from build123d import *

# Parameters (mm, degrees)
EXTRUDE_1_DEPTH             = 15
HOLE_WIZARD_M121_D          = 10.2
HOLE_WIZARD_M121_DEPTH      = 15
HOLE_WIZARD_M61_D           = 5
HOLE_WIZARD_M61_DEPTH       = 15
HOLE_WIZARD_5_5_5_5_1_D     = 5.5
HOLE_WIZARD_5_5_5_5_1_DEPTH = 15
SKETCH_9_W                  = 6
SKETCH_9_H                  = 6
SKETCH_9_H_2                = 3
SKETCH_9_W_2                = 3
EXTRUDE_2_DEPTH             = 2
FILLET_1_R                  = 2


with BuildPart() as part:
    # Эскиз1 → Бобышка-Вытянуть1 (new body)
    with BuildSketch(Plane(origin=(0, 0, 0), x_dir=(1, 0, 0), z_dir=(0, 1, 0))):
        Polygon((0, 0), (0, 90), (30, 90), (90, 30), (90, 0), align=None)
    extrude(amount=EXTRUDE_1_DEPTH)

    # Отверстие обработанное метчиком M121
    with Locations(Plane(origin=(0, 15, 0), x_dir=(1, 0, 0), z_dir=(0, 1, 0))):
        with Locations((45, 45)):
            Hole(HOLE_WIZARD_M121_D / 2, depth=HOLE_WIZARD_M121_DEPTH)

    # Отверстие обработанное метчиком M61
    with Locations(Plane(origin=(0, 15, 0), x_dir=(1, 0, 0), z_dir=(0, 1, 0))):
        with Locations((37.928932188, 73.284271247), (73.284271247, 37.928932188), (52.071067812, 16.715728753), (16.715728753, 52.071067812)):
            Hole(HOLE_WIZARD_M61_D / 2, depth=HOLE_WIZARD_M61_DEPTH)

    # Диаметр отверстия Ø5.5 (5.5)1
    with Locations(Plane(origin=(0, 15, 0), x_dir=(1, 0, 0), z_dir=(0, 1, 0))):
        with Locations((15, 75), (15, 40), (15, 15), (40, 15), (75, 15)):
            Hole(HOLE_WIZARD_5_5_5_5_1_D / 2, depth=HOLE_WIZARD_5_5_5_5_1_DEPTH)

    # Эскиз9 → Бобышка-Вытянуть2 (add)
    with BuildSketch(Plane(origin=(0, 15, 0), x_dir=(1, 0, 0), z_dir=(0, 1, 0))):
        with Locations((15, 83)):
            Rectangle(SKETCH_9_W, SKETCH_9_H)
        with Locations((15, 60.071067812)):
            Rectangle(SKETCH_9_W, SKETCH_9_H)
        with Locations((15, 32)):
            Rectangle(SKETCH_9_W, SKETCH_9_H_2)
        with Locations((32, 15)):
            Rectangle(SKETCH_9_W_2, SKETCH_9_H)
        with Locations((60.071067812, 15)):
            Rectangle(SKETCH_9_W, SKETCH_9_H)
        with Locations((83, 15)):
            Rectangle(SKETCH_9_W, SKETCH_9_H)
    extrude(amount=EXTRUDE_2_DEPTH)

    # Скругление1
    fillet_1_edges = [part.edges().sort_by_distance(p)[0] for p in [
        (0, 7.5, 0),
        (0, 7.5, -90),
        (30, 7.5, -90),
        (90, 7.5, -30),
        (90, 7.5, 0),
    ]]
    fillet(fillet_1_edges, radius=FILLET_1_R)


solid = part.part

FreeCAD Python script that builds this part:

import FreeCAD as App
import Part
import Sketcher
Q = App.Units.Quantity


def edges_at(feature, points):
    """Names of the edges that pass closest to the given points."""
    edges = feature.Shape.Edges
    near = lambda p: min(range(len(edges)), key=lambda i: edges[i].distToShape(Part.Vertex(*p))[0])
    return sorted({f"Edge{near(p) + 1}" for p in points})


def add_polygon(sketch, points):
    """Adds a closed chain of lines whose ends are joined by coincident constraints."""
    first, n = sketch.GeometryCount, len(points)
    for a, b in zip(points, points[1:] + points[:1]):
        sketch.addGeometry(Part.LineSegment(App.Vector(*a, 0), App.Vector(*b, 0)), False)
    for i in range(n):
        sketch.addConstraint(Sketcher.Constraint("Coincident", first + i, 2, first + (i + 1) % n, 1))

doc = App.newDocument("Part")
body = doc.addObject("PartDesign::Body", "Body")

sketch1 = body.newObject("Sketcher::SketchObject", "Sketch")
sketch1.AttachmentSupport = (doc.getObject("XZ_Plane"), [""])
sketch1.MapMode = "FlatFace"
add_polygon(sketch1, [(0, -90), (0, 0), (90, 0), (90, -30), (30, -90)])
sketch1.addConstraint(Sketcher.Constraint("Vertical", 0))
sketch1.addConstraint(Sketcher.Constraint("Horizontal", 1))
sketch1.addConstraint(Sketcher.Constraint("Vertical", 2))
sketch1.addConstraint(Sketcher.Constraint("Horizontal", 4))
sketch1.addConstraint(Sketcher.Constraint("Coincident", 0, 2, -1, 1))
sketch1.addConstraint(Sketcher.Constraint("Equal", 1, 0))
sketch1.addConstraint(Sketcher.Constraint("Equal", 4, 2))
sketch1.addConstraint(Sketcher.Constraint("DistanceX", 1, 1, 1, 2, Q("90 mm")))
sketch1.addConstraint(Sketcher.Constraint("DistanceX", 4, 2, 4, 1, Q("30 mm")))
pad1 = body.newObject("PartDesign::Pad", "Pad")
pad1.Profile = sketch1
pad1.Length = 15
pad1.Reversed = True

sketch2 = body.newObject("Sketcher::SketchObject", "Sketch001")
sketch2.AttachmentSupport = (doc.getObject("XZ_Plane"), [""])
sketch2.MapMode = "FlatFace"
sketch2.AttachmentOffset = App.Placement(App.Vector(0, 0, -15), App.Rotation())
sketch2.addGeometry(Part.Circle(App.Vector(45, -45, 0), App.Vector(0, 0, 1), 5.1), False)
sketch2.addConstraint(Sketcher.Constraint("Diameter", 0, Q("10.2 mm")))
sketch2.addConstraint(Sketcher.Constraint("DistanceX", -1, 1, 0, 3, Q("45 mm")))
sketch2.addConstraint(Sketcher.Constraint("DistanceY", 0, 3, -1, 1, Q("45 mm")))
doc.recompute()
hole = body.newObject("PartDesign::Hole", "Hole")
hole.Profile = sketch2
hole.ThreadType = "None"
hole.Diameter = 10.2
hole.DepthType = "Dimension"
hole.Depth = 15
hole.DrillPoint = "Flat"
hole.Reversed = True

sketch3 = body.newObject("Sketcher::SketchObject", "Sketch002")
sketch3.AttachmentSupport = (doc.getObject("XZ_Plane"), [""])
sketch3.MapMode = "FlatFace"
sketch3.AttachmentOffset = App.Placement(App.Vector(0, 0, -15), App.Rotation())
sketch3.addGeometry(Part.Circle(App.Vector(37.928932, -73.284271, 0), App.Vector(0, 0, 1), 2.5), False)
sketch3.addGeometry(Part.Circle(App.Vector(73.284271, -37.928932, 0), App.Vector(0, 0, 1), 2.5), False)
sketch3.addGeometry(Part.Circle(App.Vector(52.071068, -16.715729, 0), App.Vector(0, 0, 1), 2.5), False)
sketch3.addGeometry(Part.Circle(App.Vector(16.715729, -52.071068, 0), App.Vector(0, 0, 1), 2.5), False)
sketch3.addConstraint(Sketcher.Constraint("Equal", 0, 1))
sketch3.addConstraint(Sketcher.Constraint("Equal", 1, 2))
sketch3.addConstraint(Sketcher.Constraint("Equal", 2, 3))
sketch3.addConstraint(Sketcher.Constraint("Diameter", 0, Q("5 mm")))
sketch3.addConstraint(Sketcher.Constraint("DistanceY", 0, 3, -1, 1, Q("73.284271 mm")))
sketch3.addConstraint(Sketcher.Constraint("DistanceX", -1, 1, 1, 3, Q("73.284271 mm")))
sketch3.addConstraint(Sketcher.Constraint("DistanceY", 2, 3, -1, 1, Q("16.715729 mm")))
sketch3.addConstraint(Sketcher.Constraint("DistanceX", -1, 1, 3, 3, Q("16.715729 mm")))
sketch3.addConstraint(Sketcher.Constraint("DistanceX", 0, 3, 1, 3, Q("35.355339 mm")))
sketch3.addConstraint(Sketcher.Constraint("DistanceY", 0, 3, 1, 3, Q("35.355339 mm")))
sketch3.addConstraint(Sketcher.Constraint("DistanceX", 3, 3, 2, 3, Q("35.355339 mm")))
sketch3.addConstraint(Sketcher.Constraint("DistanceY", 3, 3, 2, 3, Q("35.355339 mm")))
doc.recompute()
hole2 = body.newObject("PartDesign::Hole", "Hole001")
hole2.Profile = sketch3
hole2.ThreadType = "None"
hole2.Diameter = 5
hole2.DepthType = "Dimension"
hole2.Depth = 15
hole2.DrillPoint = "Flat"
hole2.Reversed = True

sketch4 = body.newObject("Sketcher::SketchObject", "Sketch003")
sketch4.AttachmentSupport = (doc.getObject("XZ_Plane"), [""])
sketch4.MapMode = "FlatFace"
sketch4.AttachmentOffset = App.Placement(App.Vector(0, 0, -15), App.Rotation())
sketch4.addGeometry(Part.Circle(App.Vector(15, -75, 0), App.Vector(0, 0, 1), 2.75), False)
sketch4.addGeometry(Part.Circle(App.Vector(15, -40, 0), App.Vector(0, 0, 1), 2.75), False)
sketch4.addGeometry(Part.Circle(App.Vector(15, -15, 0), App.Vector(0, 0, 1), 2.75), False)
sketch4.addGeometry(Part.Circle(App.Vector(40, -15, 0), App.Vector(0, 0, 1), 2.75), False)
sketch4.addGeometry(Part.Circle(App.Vector(75, -15, 0), App.Vector(0, 0, 1), 2.75), False)
sketch4.addConstraint(Sketcher.Constraint("Equal", 0, 1))
sketch4.addConstraint(Sketcher.Constraint("Equal", 1, 2))
sketch4.addConstraint(Sketcher.Constraint("Equal", 2, 3))
sketch4.addConstraint(Sketcher.Constraint("Equal", 3, 4))
sketch4.addConstraint(Sketcher.Constraint("Horizontal", 2, 3, 3, 3))
sketch4.addConstraint(Sketcher.Constraint("Horizontal", 3, 3, 4, 3))
sketch4.addConstraint(Sketcher.Constraint("Vertical", 0, 3, 1, 3))
sketch4.addConstraint(Sketcher.Constraint("Vertical", 1, 3, 2, 3))
sketch4.addConstraint(Sketcher.Constraint("Diameter", 0, Q("5.5 mm")))
sketch4.addConstraint(Sketcher.Constraint("DistanceX", -1, 1, 0, 3, Q("15 mm")))
sketch4.addConstraint(Sketcher.Constraint("DistanceY", 0, 3, -1, 1, Q("75 mm")))
sketch4.addConstraint(Sketcher.Constraint("DistanceY", 1, 3, -1, 1, Q("40 mm")))
sketch4.addConstraint(Sketcher.Constraint("DistanceY", 2, 3, -1, 1, Q("15 mm")))
sketch4.addConstraint(Sketcher.Constraint("DistanceX", -1, 1, 3, 3, Q("40 mm")))
sketch4.addConstraint(Sketcher.Constraint("DistanceX", -1, 1, 4, 3, Q("75 mm")))
doc.recompute()
hole3 = body.newObject("PartDesign::Hole", "Hole002")
hole3.Profile = sketch4
hole3.ThreadType = "None"
hole3.Diameter = 5.5
hole3.DepthType = "Dimension"
hole3.Depth = 15
hole3.DrillPoint = "Flat"
hole3.Reversed = True

sketch5 = body.newObject("Sketcher::SketchObject", "Sketch004")
sketch5.AttachmentSupport = (doc.getObject("XZ_Plane"), [""])
sketch5.MapMode = "FlatFace"
sketch5.AttachmentOffset = App.Placement(App.Vector(0, 0, -15), App.Rotation())
add_polygon(sketch5, [(12, -86), (12, -80), (18, -80), (18, -86)])
add_polygon(sketch5, [(12, -63.071068), (12, -57.071068), (18, -57.071068), (18, -63.071068)])
add_polygon(sketch5, [(12, -33.5), (12, -30.5), (18, -30.5), (18, -33.5)])
add_polygon(sketch5, [(30.5, -18), (30.5, -12), (33.5, -12), (33.5, -18)])
add_polygon(sketch5, [(57.071068, -18), (57.071068, -12), (63.071068, -12), (63.071068, -18)])
add_polygon(sketch5, [(80, -18), (80, -12), (86, -12), (86, -18)])
sketch5.addConstraint(Sketcher.Constraint("Vertical", 0))
sketch5.addConstraint(Sketcher.Constraint("Horizontal", 1))
sketch5.addConstraint(Sketcher.Constraint("Vertical", 2))
sketch5.addConstraint(Sketcher.Constraint("Horizontal", 3))
sketch5.addConstraint(Sketcher.Constraint("Vertical", 4))
sketch5.addConstraint(Sketcher.Constraint("Horizontal", 5))
sketch5.addConstraint(Sketcher.Constraint("Vertical", 6))
sketch5.addConstraint(Sketcher.Constraint("Horizontal", 7))
sketch5.addConstraint(Sketcher.Constraint("Vertical", 8))
sketch5.addConstraint(Sketcher.Constraint("Horizontal", 9))
sketch5.addConstraint(Sketcher.Constraint("Vertical", 10))
sketch5.addConstraint(Sketcher.Constraint("Horizontal", 11))
sketch5.addConstraint(Sketcher.Constraint("Vertical", 12))
sketch5.addConstraint(Sketcher.Constraint("Horizontal", 13))
sketch5.addConstraint(Sketcher.Constraint("Vertical", 14))
sketch5.addConstraint(Sketcher.Constraint("Horizontal", 15))
sketch5.addConstraint(Sketcher.Constraint("Vertical", 16))
sketch5.addConstraint(Sketcher.Constraint("Horizontal", 17))
sketch5.addConstraint(Sketcher.Constraint("Vertical", 18))
sketch5.addConstraint(Sketcher.Constraint("Horizontal", 19))
sketch5.addConstraint(Sketcher.Constraint("Vertical", 20))
sketch5.addConstraint(Sketcher.Constraint("Horizontal", 21))
sketch5.addConstraint(Sketcher.Constraint("Vertical", 22))
sketch5.addConstraint(Sketcher.Constraint("Horizontal", 23))
sketch5.addConstraint(Sketcher.Constraint("Horizontal", 13, 2, 16, 2))
sketch5.addConstraint(Sketcher.Constraint("Horizontal", 15, 2, 18, 2))
sketch5.addConstraint(Sketcher.Constraint("Horizontal", 17, 2, 20, 2))
sketch5.addConstraint(Sketcher.Constraint("Horizontal", 19, 2, 22, 2))
sketch5.addConstraint(Sketcher.Constraint("Vertical", 3, 2, 4, 2))
sketch5.addConstraint(Sketcher.Constraint("Vertical", 2, 2, 5, 2))
sketch5.addConstraint(Sketcher.Constraint("Vertical", 7, 2, 8, 2))
sketch5.addConstraint(Sketcher.Constraint("Vertical", 6, 2, 9, 2))
sketch5.addConstraint(Sketcher.Constraint("Equal", 11, 17))
sketch5.addConstraint(Sketcher.Constraint("Equal", 19, 21))
sketch5.addConstraint(Sketcher.Constraint("Equal", 23, 0))
sketch5.addConstraint(Sketcher.Constraint("Equal", 2, 4))
sketch5.addConstraint(Sketcher.Constraint("Equal", 15, 8))
sketch5.addConstraint(Sketcher.Constraint("Equal", 6, 12))
sketch5.addConstraint(Sketcher.Constraint("DistanceX", 1, 1, 1, 2, Q("6 mm")))
sketch5.addConstraint(Sketcher.Constraint("DistanceX", 13, 1, 13, 2, Q("3 mm")))
sketch5.addConstraint(Sketcher.Constraint("DistanceX", -1, 1, 0, 2, Q("12 mm")))
sketch5.addConstraint(Sketcher.Constraint("DistanceY", 0, 2, -1, 1, Q("80 mm")))
sketch5.addConstraint(Sketcher.Constraint("DistanceY", 12, 2, -1, 1, Q("12 mm")))
sketch5.addConstraint(Sketcher.Constraint("DistanceX", -1, 1, 20, 2, Q("80 mm")))
sketch5.addConstraint(Sketcher.Constraint("DistanceY", 8, 2, -1, 1, Q("30.5 mm")))
sketch5.addConstraint(Sketcher.Constraint("DistanceX", -1, 1, 12, 2, Q("30.5 mm")))
sketch5.addConstraint(Sketcher.Constraint("DistanceY", 4, 2, -1, 1, Q("57.071068 mm")))
sketch5.addConstraint(Sketcher.Constraint("DistanceX", -1, 1, 16, 2, Q("57.071068 mm")))
pad2 = body.newObject("PartDesign::Pad", "Pad001")
pad2.Profile = sketch5
pad2.Length = 2
pad2.Reversed = True
doc.recompute()

fillet = body.newObject("PartDesign::Fillet", "Fillet")
fillet.Base = (pad2, edges_at(pad2, [
    (0, 7.5, 0),
    (0, 7.5, -90),
    (30, 7.5, -90),
    (90, 7.5, -30),
    (90, 7.5, 0),
]))
fillet.Radius = 2

doc.recompute()
